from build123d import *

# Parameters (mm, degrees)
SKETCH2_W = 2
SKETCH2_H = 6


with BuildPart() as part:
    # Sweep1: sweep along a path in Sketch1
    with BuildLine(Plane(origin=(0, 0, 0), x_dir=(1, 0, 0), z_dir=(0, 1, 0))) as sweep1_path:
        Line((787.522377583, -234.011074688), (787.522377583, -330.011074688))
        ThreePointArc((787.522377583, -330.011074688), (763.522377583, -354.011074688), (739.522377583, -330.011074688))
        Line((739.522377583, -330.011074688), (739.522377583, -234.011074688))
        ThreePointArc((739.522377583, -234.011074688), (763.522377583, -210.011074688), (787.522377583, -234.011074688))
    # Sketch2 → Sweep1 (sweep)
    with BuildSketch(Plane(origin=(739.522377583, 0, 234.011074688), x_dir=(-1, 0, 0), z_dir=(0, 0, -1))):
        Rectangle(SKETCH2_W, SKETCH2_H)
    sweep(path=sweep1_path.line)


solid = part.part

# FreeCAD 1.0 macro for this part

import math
import FreeCAD as App
import Part
import Sketcher
from FreeCAD import Vector
Q = App.Units.Quantity

doc = App.newDocument("Part")
body = doc.addObject("PartDesign::Body", "Body")

sketch1 = doc.addObject("Sketcher::SketchObject", "Sketch")
body.addObject(sketch1)
sketch1.AttachmentSupport = (doc.XY_Plane, [""])
sketch1.MapMode = "FlatFace"
sketch1.AttachmentOffset = App.Placement(Vector(0, 0, 234.011075), App.Rotation())
sketch1.addGeometry([
    Part.LineSegment(Vector(740.5, 3, 0), Vector(740.5, -3, 0)),
    Part.LineSegment(Vector(740.5, -3, 0), Vector(738.5, -3, 0)),
    Part.LineSegment(Vector(738.5, -3, 0), Vector(738.5, 3, 0)),
    Part.LineSegment(Vector(738.5, 3, 0), Vector(740.5, 3, 0)),
], False)
sketch1.addConstraint([
    Sketcher.Constraint("Coincident", 0, 2, 1, 1),
    Sketcher.Constraint("Coincident", 1, 2, 2, 1),
    Sketcher.Constraint("Coincident", 2, 2, 3, 1),
    Sketcher.Constraint("Coincident", 3, 2, 0, 1),
    Sketcher.Constraint("Vertical", 0),
    Sketcher.Constraint("Horizontal", 1),
    Sketcher.Constraint("Vertical", 2),
    Sketcher.Constraint("Horizontal", 3),
    Sketcher.Constraint("DistanceX", 1, 2, 1, 1, Q("2 mm")),
    Sketcher.Constraint("DistanceY", 0, 2, 0, 1, Q("6 mm")),
    Sketcher.Constraint("DistanceY", 0, 2, -1, 1, Q("3 mm")),
    Sketcher.Constraint("DistanceX", -1, 1, 0, 2, Q("740.522378 mm")),
])

sketch2 = doc.addObject("Sketcher::SketchObject", "Sketch001")
body.addObject(sketch2)
sketch2.AttachmentSupport = (doc.XZ_Plane, [""])
sketch2.MapMode = "FlatFace"
sketch2.addGeometry([
    Part.LineSegment(Vector(788, 234, 0), Vector(788, 330, 0)),
    Part.ArcOfCircle(Part.Circle(Vector(764, 330, 0), Vector(0, 0, 1), 24), math.radians(0), math.radians(180)),
    Part.LineSegment(Vector(740, 330, 0), Vector(740, 234, 0)),
    Part.ArcOfCircle(Part.Circle(Vector(764, 234, 0), Vector(0, 0, 1), 24), math.radians(180), math.radians(360)),
], False)
sketch2.addConstraint([
    Sketcher.Constraint("Tangent", 0, 2, 1, 1),
    Sketcher.Constraint("Tangent", 1, 2, 2, 1),
    Sketcher.Constraint("Tangent", 2, 2, 3, 1),
    Sketcher.Constraint("Tangent", 3, 2, 0, 1),
    Sketcher.Constraint("Vertical", 0),
    Sketcher.Constraint("Vertical", 2),
    Sketcher.Constraint("Radius", 1, Q("24 mm")),
    Sketcher.Constraint("DistanceY", 0, 1, 0, 2, Q("96 mm")),
    Sketcher.Constraint("DistanceX", -1, 1, 1, 3, Q("763.522378 mm")),
    Sketcher.Constraint("DistanceY", -1, 1, 1, 3, Q("330.011075 mm")),
])
doc.recompute()

additivepipe = doc.addObject("PartDesign::AdditivePipe", "AdditivePipe")
body.addObject(additivepipe)
additivepipe.Profile = sketch1
additivepipe.Spine = (sketch2, ["Edge1", "Edge2", "Edge3", "Edge4"])

doc.recompute()
